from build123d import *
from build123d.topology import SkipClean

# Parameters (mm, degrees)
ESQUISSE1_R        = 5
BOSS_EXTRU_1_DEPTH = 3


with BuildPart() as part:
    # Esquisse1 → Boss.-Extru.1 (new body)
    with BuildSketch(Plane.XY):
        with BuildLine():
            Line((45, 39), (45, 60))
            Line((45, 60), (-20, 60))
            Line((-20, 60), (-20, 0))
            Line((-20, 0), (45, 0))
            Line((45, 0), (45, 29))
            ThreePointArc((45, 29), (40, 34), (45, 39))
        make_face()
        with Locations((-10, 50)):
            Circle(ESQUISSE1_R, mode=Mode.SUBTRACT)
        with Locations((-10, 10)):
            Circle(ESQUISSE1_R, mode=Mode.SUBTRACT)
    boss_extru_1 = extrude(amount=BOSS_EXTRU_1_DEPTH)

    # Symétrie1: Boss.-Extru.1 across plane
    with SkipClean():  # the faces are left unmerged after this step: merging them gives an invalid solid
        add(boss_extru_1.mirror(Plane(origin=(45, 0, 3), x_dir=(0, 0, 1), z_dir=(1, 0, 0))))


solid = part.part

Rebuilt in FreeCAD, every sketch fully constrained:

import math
import FreeCAD as App
import Part
import Sketcher
from FreeCAD import Vector
Q = App.Units.Quantity

doc = App.newDocument("Part")
params = doc.addObject("Spreadsheet::Sheet", "Params")
for row, (alias, value) in enumerate([
    ("sketch1_diameter", "10 mm"),
    ("sketch1_width", "65 mm"),
    ("sketch1_height", "21 mm"),
    ("sketch1_height2", "60 mm"),
    ("pad1_length", "3 mm"),
], start=1):
    params.set(f"A{row}", alias)
    params.set(f"B{row}", "=" + value)
    params.setAlias(f"B{row}", alias)

body = doc.addObject("PartDesign::Body", "Body")

sketch1 = body.newObject("Sketcher::SketchObject", "Sketch")
sketch1.AttachmentSupport = (doc.getObject("XY_Plane"), [""])
sketch1.MapMode = "FlatFace"
sketch1.addGeometry(Part.LineSegment(Vector(45, 39, 0), Vector(45, 60, 0)), False)
sketch1.addGeometry(Part.LineSegment(Vector(45, 60, 0), Vector(-20, 60, 0)), False)
sketch1.addGeometry(Part.LineSegment(Vector(-20, 60, 0), Vector(-20, 0, 0)), False)
sketch1.addGeometry(Part.LineSegment(Vector(-20, 0, 0), Vector(45, 0, 0)), False)
sketch1.addGeometry(Part.LineSegment(Vector(45, 0, 0), Vector(45, 29, 0)), False)
sketch1.addGeometry(Part.ArcOfCircle(Part.Circle(Vector(45, 34, 0), Vector(0, 0, 1), 5), math.radians(90), math.radians(270)), False)
sketch1.addGeometry(Part.Circle(Vector(-10, 10, 0), Vector(0, 0, 1), 5), False)
sketch1.addGeometry(Part.Circle(Vector(-10, 50, 0), Vector(0, 0, 1), 5), False)
sketch1.addConstraint(Sketcher.Constraint("Coincident", 0, 2, 1, 1))
sketch1.addConstraint(Sketcher.Constraint("Coincident", 1, 2, 2, 1))
sketch1.addConstraint(Sketcher.Constraint("Coincident", 2, 2, 3, 1))
sketch1.addConstraint(Sketcher.Constraint("Coincident", 3, 2, 4, 1))
sketch1.addConstraint(Sketcher.Constraint("Coincident", 4, 2, 5, 2))
sketch1.addConstraint(Sketcher.Constraint("Coincident", 5, 1, 0, 1))
sketch1.addConstraint(Sketcher.Constraint("Vertical", 0))
sketch1.addConstraint(Sketcher.Constraint("Horizontal", 1))
sketch1.addConstraint(Sketcher.Constraint("Vertical", 2))
sketch1.addConstraint(Sketcher.Constraint("Horizontal", 3))
sketch1.addConstraint(Sketcher.Constraint("Vertical", 4))
sketch1.addConstraint(Sketcher.Constraint("Equal", 5, 6))
sketch1.addConstraint(Sketcher.Constraint("Equal", 6, 7))
sketch1.addConstraint(Sketcher.Constraint("PointOnObject", 2, 2, -1))
sketch1.addConstraint(Sketcher.Constraint("Vertical", 6, 3, 7, 3))
sketch1.addConstraint(Sketcher.Constraint("Vertical", 5, 3, 0, 2))
sketch1.addConstraint(Sketcher.Constraint("Vertical", 0, 2, 3, 2))
sketch1.addConstraint(Sketcher.Constraint("Diameter", 6, Q("10 mm")))
sketch1.addConstraint(Sketcher.Constraint("DistanceX", 1, 2, 1, 1, Q("65 mm")))
sketch1.addConstraint(Sketcher.Constraint("DistanceY", 0, 1, 0, 2, Q("21 mm")))
sketch1.addConstraint(Sketcher.Constraint("DistanceY", 2, 2, 2, 1, Q("60 mm")))
sketch1.addConstraint(Sketcher.Constraint("DistanceX", -1, 1, 5, 3, Q("45 mm")))
sketch1.addConstraint(Sketcher.Constraint("DistanceX", 6, 3, -1, 1, Q("10 mm")))
sketch1.addConstraint(Sketcher.Constraint("DistanceY", -1, 1, 6, 3, Q("10 mm")))
sketch1.addConstraint(Sketcher.Constraint("DistanceY", -1, 1, 7, 3, Q("50 mm")))
sketch1.setExpression("Constraints[17]", "Params.sketch1_diameter")
sketch1.setExpression("Constraints[18]", "Params.sketch1_width")
sketch1.setExpression("Constraints[19]", "Params.sketch1_height")
sketch1.setExpression("Constraints[20]", "Params.sketch1_height2")
pad1 = body.newObject("PartDesign::Pad", "Pad")
pad1.Profile = sketch1
pad1.setExpression("Length", "Params.pad1_length")
doc.recompute()

datumplane = body.newObject("PartDesign::Plane", "DatumPlane")
datumplane.AttachmentSupport = (doc.getObject("YZ_Plane"), [""])
datumplane.MapMode = "FlatFace"
datumplane.AttachmentOffset = App.Placement(Vector(0, 0, 45), App.Rotation())
mirrored = body.newObject("PartDesign::Mirrored", "Mirrored")
mirrored.Originals = [pad1]
mirrored.MirrorPlane = (datumplane, [""])
body.Tip = mirrored

doc.recompute()
